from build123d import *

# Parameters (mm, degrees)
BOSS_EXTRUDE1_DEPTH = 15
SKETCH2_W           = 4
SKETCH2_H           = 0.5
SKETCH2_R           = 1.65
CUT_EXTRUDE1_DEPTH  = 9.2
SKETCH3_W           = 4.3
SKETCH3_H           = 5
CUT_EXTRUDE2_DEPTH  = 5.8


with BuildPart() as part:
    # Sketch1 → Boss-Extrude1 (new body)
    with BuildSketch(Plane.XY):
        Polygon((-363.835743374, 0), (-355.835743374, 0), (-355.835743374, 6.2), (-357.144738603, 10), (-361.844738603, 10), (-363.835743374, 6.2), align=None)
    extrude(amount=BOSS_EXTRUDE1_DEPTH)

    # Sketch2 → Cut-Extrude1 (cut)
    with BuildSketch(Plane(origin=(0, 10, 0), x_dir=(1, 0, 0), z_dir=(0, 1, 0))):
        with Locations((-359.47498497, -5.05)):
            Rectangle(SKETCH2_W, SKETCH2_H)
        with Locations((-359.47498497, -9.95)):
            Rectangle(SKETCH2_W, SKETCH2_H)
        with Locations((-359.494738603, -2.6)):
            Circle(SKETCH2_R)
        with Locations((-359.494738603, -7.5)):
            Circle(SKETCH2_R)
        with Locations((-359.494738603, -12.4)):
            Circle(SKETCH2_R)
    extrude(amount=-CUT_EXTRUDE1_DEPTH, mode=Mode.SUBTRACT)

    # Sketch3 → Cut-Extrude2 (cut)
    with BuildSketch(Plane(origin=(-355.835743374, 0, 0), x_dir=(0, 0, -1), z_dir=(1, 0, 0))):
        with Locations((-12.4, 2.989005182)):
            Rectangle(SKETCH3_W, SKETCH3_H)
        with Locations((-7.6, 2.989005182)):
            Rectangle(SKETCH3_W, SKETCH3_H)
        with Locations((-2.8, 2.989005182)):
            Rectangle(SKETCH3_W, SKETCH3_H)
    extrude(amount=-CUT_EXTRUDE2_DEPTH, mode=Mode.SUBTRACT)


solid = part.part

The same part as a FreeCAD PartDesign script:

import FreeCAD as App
import Part
import Sketcher

doc = App.newDocument("Part")
body = doc.addObject("PartDesign::Body", "Body")

sketch1 = body.newObject("Sketcher::SketchObject", "Sketch")
sketch1.AttachmentSupport = (doc.getObject("XY_Plane"), [""])
sketch1.MapMode = "FlatFace"
sketch1.addGeometry([
    Part.LineSegment(App.Vector(-363.835743, 0, 0), App.Vector(-355.835743, 0, 0)),
    Part.LineSegment(App.Vector(-355.835743, 0, 0), App.Vector(-355.835743, 6.2, 0)),
    Part.LineSegment(App.Vector(-355.835743, 6.2, 0), App.Vector(-357.144739, 10, 0)),
    Part.LineSegment(App.Vector(-357.144739, 10, 0), App.Vector(-361.844739, 10, 0)),
    Part.LineSegment(App.Vector(-361.844739, 10, 0), App.Vector(-363.835743, 6.2, 0)),
    Part.LineSegment(App.Vector(-363.835743, 6.2, 0), App.Vector(-363.835743, 0, 0)),
], False)
sketch1.addConstraint([
    Sketcher.Constraint("Coincident", 0, 2, 1, 1),
    Sketcher.Constraint("Coincident", 1, 2, 2, 1),
    Sketcher.Constraint("Coincident", 2, 2, 3, 1),
    Sketcher.Constraint("Coincident", 3, 2, 4, 1),
    Sketcher.Constraint("Coincident", 4, 2, 5, 1),
    Sketcher.Constraint("Coincident", 5, 2, 0, 1),
    Sketcher.Constraint("Horizontal", 0),
    Sketcher.Constraint("Vertical", 1),
    Sketcher.Constraint("Horizontal", 3),
    Sketcher.Constraint("Vertical", 5),
    Sketcher.Constraint("PointOnObject", 0, 2, -1),
    Sketcher.Constraint("Horizontal", 1, 2, 4, 2),
    Sketcher.Constraint("DistanceX", 0, 1, 0, 2, 8.0),
    Sketcher.Constraint("DistanceX", 3, 2, 3, 1, 4.7),
    Sketcher.Constraint("DistanceY", 1, 1, 1, 2, 6.2),
    Sketcher.Constraint("DistanceY", -1, 1, 2, 2, 10.0),
    Sketcher.Constraint("Distance", 4, 4.29),
    Sketcher.Constraint("DistanceX", 2, 2, -1, 1, 357.144739),
])
pad1 = body.newObject("PartDesign::Pad", "Pad")
pad1.Profile = sketch1
pad1.Length = 15

sketch2 = body.newObject("Sketcher::SketchObject", "Sketch001")
sketch2.AttachmentSupport = (doc.getObject("XZ_Plane"), [""])
sketch2.MapMode = "FlatFace"
sketch2.AttachmentOffset = App.Placement(App.Vector(0, 0, -10), App.Rotation())
sketch2.addGeometry([
    Part.LineSegment(App.Vector(-361.474985, 4.8, 0), App.Vector(-361.474985, 5.3, 0)),
    Part.LineSegment(App.Vector(-361.474985, 5.3, 0), App.Vector(-357.474985, 5.3, 0)),
    Part.LineSegment(App.Vector(-357.474985, 5.3, 0), App.Vector(-357.474985, 4.8, 0)),
    Part.LineSegment(App.Vector(-357.474985, 4.8, 0), App.Vector(-361.474985, 4.8, 0)),
    Part.LineSegment(App.Vector(-361.474985, 9.7, 0), App.Vector(-361.474985, 10.2, 0)),
    Part.LineSegment(App.Vector(-361.474985, 10.2, 0), App.Vector(-357.474985, 10.2, 0)),
    Part.LineSegment(App.Vector(-357.474985, 10.2, 0), App.Vector(-357.474985, 9.7, 0)),
    Part.LineSegment(App.Vector(-357.474985, 9.7, 0), App.Vector(-361.474985, 9.7, 0)),
    Part.Circle(App.Vector(-359.494739, 2.6, 0), App.Vector(0, 0, 1), 1.65),
    Part.Circle(App.Vector(-359.494739, 7.5, 0), App.Vector(0, 0, 1), 1.65),
    Part.Circle(App.Vector(-359.494739, 12.4, 0), App.Vector(0, 0, 1), 1.65),
], False)
sketch2.addConstraint([
    Sketcher.Constraint("Coincident", 0, 2, 1, 1),
    Sketcher.Constraint("Coincident", 1, 2, 2, 1),
    Sketcher.Constraint("Coincident", 2, 2, 3, 1),
    Sketcher.Constraint("Coincident", 3, 2, 0, 1),
    Sketcher.Constraint("Coincident", 4, 2, 5, 1),
    Sketcher.Constraint("Coincident", 5, 2, 6, 1),
    Sketcher.Constraint("Coincident", 6, 2, 7, 1),
    Sketcher.Constraint("Coincident", 7, 2, 4, 1),
    Sketcher.Constraint("Vertical", 0),
    Sketcher.Constraint("Horizontal", 1),
    Sketcher.Constraint("Vertical", 2),
    Sketcher.Constraint("Horizontal", 3),
    Sketcher.Constraint("Vertical", 4),
    Sketcher.Constraint("Horizontal", 5),
    Sketcher.Constraint("Vertical", 6),
    Sketcher.Constraint("Horizontal", 7),
    Sketcher.Constraint("Equal", 8, 9),
    Sketcher.Constraint("Equal", 9, 10),
    Sketcher.Constraint("Vertical", 8, 3, 9, 3),
    Sketcher.Constraint("Vertical", 9, 3, 10, 3),
    Sketcher.Constraint("Vertical", 3, 2, 4, 2),
    Sketcher.Constraint("Vertical", 2, 2, 5, 2),
    Sketcher.Constraint("Equal", 2, 4),
    Sketcher.Constraint("Diameter", 8, 3.3),
    Sketcher.Constraint("DistanceX", 1, 1, 1, 2, 4.0),
    Sketcher.Constraint("DistanceY", 0, 1, 0, 2, 0.5),
    Sketcher.Constraint("DistanceY", -1, 1, 8, 3, 2.6),
    Sketcher.Constraint("DistanceY", -1, 1, 9, 3, 7.5),
    Sketcher.Constraint("DistanceY", -1, 1, 10, 3, 12.4),
    Sketcher.Constraint("DistanceY", -1, 1, 0, 2, 5.3),
    Sketcher.Constraint("DistanceY", -1, 1, 4, 2, 10.2),
    Sketcher.Constraint("DistanceX", 8, 3, -1, 1, 359.494739),
    Sketcher.Constraint("DistanceX", 0, 2, -1, 1, 361.474985),
])
pocket1 = body.newObject("PartDesign::Pocket", "Pocket")
pocket1.Profile = sketch2
pocket1.Length = 9.2
pocket1.Reversed = True

sketch3 = body.newObject("Sketcher::SketchObject", "Sketch002")
sketch3.AttachmentSupport = (doc.getObject("YZ_Plane"), [""])
sketch3.MapMode = "FlatFace"
sketch3.AttachmentOffset = App.Placement(App.Vector(0, 0, -355.835743), App.Rotation())
sketch3.addGeometry([
    Part.LineSegment(App.Vector(5.489005, 14.55, 0), App.Vector(0.489005, 14.55, 0)),
    Part.LineSegment(App.Vector(0.489005, 14.55, 0), App.Vector(0.489005, 10.25, 0)),
    Part.LineSegment(App.Vector(0.489005, 10.25, 0), App.Vector(5.489005, 10.25, 0)),
    Part.LineSegment(App.Vector(5.489005, 10.25, 0), App.Vector(5.489005, 14.55, 0)),
    Part.LineSegment(App.Vector(5.489005, 9.75, 0), App.Vector(0.489005, 9.75, 0)),
    Part.LineSegment(App.Vector(0.489005, 9.75, 0), App.Vector(0.489005, 5.45, 0)),
    Part.LineSegment(App.Vector(0.489005, 5.45, 0), App.Vector(5.489005, 5.45, 0)),
    Part.LineSegment(App.Vector(5.489005, 5.45, 0), App.Vector(5.489005, 9.75, 0)),
    Part.LineSegment(App.Vector(5.489005, 4.95, 0), App.Vector(0.489005, 4.95, 0)),
    Part.LineSegment(App.Vector(0.489005, 4.95, 0), App.Vector(0.489005, 0.65, 0)),
    Part.LineSegment(App.Vector(0.489005, 0.65, 0), App.Vector(5.489005, 0.65, 0)),
    Part.LineSegment(App.Vector(5.489005, 0.65, 0), App.Vector(5.489005, 4.95, 0)),
], False)
sketch3.addConstraint([
    Sketcher.Constraint("Coincident", 0, 2, 1, 1),
    Sketcher.Constraint("Coincident", 1, 2, 2, 1),
    Sketcher.Constraint("Coincident", 2, 2, 3, 1),
    Sketcher.Constraint("Coincident", 3, 2, 0, 1),
    Sketcher.Constraint("Coincident", 4, 2, 5, 1),
    Sketcher.Constraint("Coincident", 5, 2, 6, 1),
    Sketcher.Constraint("Coincident", 6, 2, 7, 1),
    Sketcher.Constraint("Coincident", 7, 2, 4, 1),
    Sketcher.Constraint("Coincident", 8, 2, 9, 1),
    Sketcher.Constraint("Coincident", 9, 2, 10, 1),
    Sketcher.Constraint("Coincident", 10, 2, 11, 1),
    Sketcher.Constraint("Coincident", 11, 2, 8, 1),
    Sketcher.Constraint("Horizontal", 0),
    Sketcher.Constraint("Vertical", 1),
    Sketcher.Constraint("Horizontal", 2),
    Sketcher.Constraint("Vertical", 3),
    Sketcher.Constraint("Horizontal", 4),
    Sketcher.Constraint("Vertical", 5),
    Sketcher.Constraint("Horizontal", 6),
    Sketcher.Constraint("Vertical", 7),
    Sketcher.Constraint("Horizontal", 8),
    Sketcher.Constraint("Vertical", 9),
    Sketcher.Constraint("Horizontal", 10),
    Sketcher.Constraint("Vertical", 11),
    Sketcher.Constraint("Vertical", 1, 2, 4, 2),
    Sketcher.Constraint("Vertical", 3, 2, 6, 2),
    Sketcher.Constraint("Vertical", 5, 2, 8, 2),
    Sketcher.Constraint("Vertical", 7, 2, 10, 2),
    Sketcher.Constraint("Equal", 3, 5),
    Sketcher.Constraint("Equal", 7, 9),
    Sketcher.Constraint("DistanceX", 0, 2, 0, 1, 5.0),
    Sketcher.Constraint("DistanceY", 1, 2, 1, 1, 4.3),
    Sketcher.Constraint("DistanceY", 4, 2, 1, 2, 0.5),
    Sketcher.Constraint("DistanceY", 8, 2, 5, 2, 0.5),
    Sketcher.Constraint("DistanceY", -1, 1, 0, 2, 14.55),
    Sketcher.Constraint("DistanceX", -1, 1, 0, 2, 0.489005),
])
pocket2 = body.newObject("PartDesign::Pocket", "Pocket001")
pocket2.Profile = sketch3
pocket2.Length = 5.8

doc.recompute()
